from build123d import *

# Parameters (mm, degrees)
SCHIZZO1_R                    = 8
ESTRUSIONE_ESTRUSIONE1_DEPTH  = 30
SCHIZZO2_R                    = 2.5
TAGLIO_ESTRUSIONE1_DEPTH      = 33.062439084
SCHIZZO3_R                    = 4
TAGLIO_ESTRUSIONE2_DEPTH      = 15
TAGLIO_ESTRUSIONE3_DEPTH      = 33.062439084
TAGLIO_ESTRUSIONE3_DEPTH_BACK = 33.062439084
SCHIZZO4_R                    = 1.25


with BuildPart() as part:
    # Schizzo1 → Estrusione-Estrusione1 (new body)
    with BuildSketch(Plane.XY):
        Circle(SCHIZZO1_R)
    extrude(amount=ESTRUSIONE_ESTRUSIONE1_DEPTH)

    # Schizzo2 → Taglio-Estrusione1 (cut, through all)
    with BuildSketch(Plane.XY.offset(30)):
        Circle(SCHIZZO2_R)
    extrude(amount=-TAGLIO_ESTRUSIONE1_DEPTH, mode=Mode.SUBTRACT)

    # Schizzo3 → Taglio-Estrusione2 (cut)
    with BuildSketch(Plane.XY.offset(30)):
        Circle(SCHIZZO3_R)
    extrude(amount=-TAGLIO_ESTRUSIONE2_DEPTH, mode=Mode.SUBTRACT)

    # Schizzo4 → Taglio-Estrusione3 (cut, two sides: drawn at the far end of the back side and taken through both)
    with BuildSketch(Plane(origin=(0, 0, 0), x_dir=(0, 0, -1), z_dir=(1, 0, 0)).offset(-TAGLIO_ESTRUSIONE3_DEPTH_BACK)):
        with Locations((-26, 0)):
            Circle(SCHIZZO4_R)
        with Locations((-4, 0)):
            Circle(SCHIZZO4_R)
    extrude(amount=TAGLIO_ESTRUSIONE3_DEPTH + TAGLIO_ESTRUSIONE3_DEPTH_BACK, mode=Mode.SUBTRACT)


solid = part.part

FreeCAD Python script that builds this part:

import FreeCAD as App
import Part
import Sketcher
from FreeCAD import Vector

doc = App.newDocument("Part")
params = doc.addObject("Spreadsheet::Sheet", "Params")
for row, (alias, value) in enumerate([
    ("sketch1_diameter", "16 mm"),
    ("pad1_length", "30 mm"),
    ("sketch2_diameter", "5 mm"),
    ("sketch3_diameter", "8 mm"),
    ("pocket2_length", "15 mm"),
    ("sketch4_diameter", "2.5 mm"),
], start=1):
    params.set(f"A{row}", alias)
    params.set(f"B{row}", "=" + value)
    params.setAlias(f"B{row}", alias)

body = doc.addObject("PartDesign::Body", "Body")

sketch1 = body.newObject("Sketcher::SketchObject", "Sketch")
sketch1.AttachmentSupport = (doc.getObject("XY_Plane"), [""])
sketch1.MapMode = "FlatFace"
sketch1.addGeometry(Part.Circle(Vector(0, 0, 0), Vector(0, 0, 1), 8), False)
sketch1.addConstraint(Sketcher.Constraint("Coincident", 0, 3, -1, 1))
sketch1.addConstraint(Sketcher.Constraint("Diameter", 0, 16.0))
sketch1.setExpression("Constraints[1]", "Params.sketch1_diameter")
pad1 = body.newObject("PartDesign::Pad", "Pad")
pad1.Profile = sketch1
pad1.setExpression("Length", "Params.pad1_length")

sketch2 = body.newObject("Sketcher::SketchObject", "Sketch001")
sketch2.AttachmentSupport = (doc.getObject("XY_Plane"), [""])
sketch2.MapMode = "FlatFace"
sketch2.AttachmentOffset = App.Placement(Vector(0, 0, 30), App.Rotation())
sketch2.addGeometry(Part.Circle(Vector(0, 0, 0), Vector(0, 0, 1), 2.5), False)
sketch2.addConstraint(Sketcher.Constraint("Coincident", 0, 3, -1, 1))
sketch2.addConstraint(Sketcher.Constraint("Diameter", 0, 5.0))
sketch2.setExpression("Constraints[1]", "Params.sketch2_diameter")
pocket1 = body.newObject("PartDesign::Pocket", "Pocket")
pocket1.Profile = sketch2
pocket1.Type = "ThroughAll"

sketch3 = body.newObject("Sketcher::SketchObject", "Sketch002")
sketch3.AttachmentSupport = (doc.getObject("XY_Plane"), [""])
sketch3.MapMode = "FlatFace"
sketch3.AttachmentOffset = App.Placement(Vector(0, 0, 30), App.Rotation())
sketch3.addGeometry(Part.Circle(Vector(0, 0, 0), Vector(0, 0, 1), 4), False)
sketch3.addConstraint(Sketcher.Constraint("Coincident", 0, 3, -1, 1))
sketch3.addConstraint(Sketcher.Constraint("Diameter", 0, 8.0))
sketch3.setExpression("Constraints[1]", "Params.sketch3_diameter")
pocket2 = body.newObject("PartDesign::Pocket", "Pocket001")
pocket2.Profile = sketch3
pocket2.setExpression("Length", "Params.pocket2_length")

sketch4 = body.newObject("Sketcher::SketchObject", "Sketch003")
sketch4.AttachmentSupport = (doc.getObject("YZ_Plane"), [""])
sketch4.MapMode = "FlatFace"
sketch4.addGeometry(Part.Circle(Vector(0, 26, 0), Vector(0, 0, 1), 1.25), False)
sketch4.addGeometry(Part.Circle(Vector(0, 4, 0), Vector(0, 0, 1), 1.25), False)
sketch4.addConstraint(Sketcher.Constraint("Equal", 0, 1))
sketch4.addConstraint(Sketcher.Constraint("PointOnObject", 0, 3, -2))
sketch4.addConstraint(Sketcher.Constraint("PointOnObject", 1, 3, -2))
sketch4.addConstraint(Sketcher.Constraint("Diameter", 0, 2.5))
sketch4.addConstraint(Sketcher.Constraint("DistanceY", -1, 1, 0, 3, 26.0))
sketch4.addConstraint(Sketcher.Constraint("DistanceY", -1, 1, 1, 3, 4.0))
sketch4.setExpression("Constraints[3]", "Params.sketch4_diameter")
pocket3 = body.newObject("PartDesign::Pocket", "Pocket002")
pocket3.Profile = sketch4
pocket3.Type = "ThroughAll"
pocket3.Midplane = True

doc.recompute()
